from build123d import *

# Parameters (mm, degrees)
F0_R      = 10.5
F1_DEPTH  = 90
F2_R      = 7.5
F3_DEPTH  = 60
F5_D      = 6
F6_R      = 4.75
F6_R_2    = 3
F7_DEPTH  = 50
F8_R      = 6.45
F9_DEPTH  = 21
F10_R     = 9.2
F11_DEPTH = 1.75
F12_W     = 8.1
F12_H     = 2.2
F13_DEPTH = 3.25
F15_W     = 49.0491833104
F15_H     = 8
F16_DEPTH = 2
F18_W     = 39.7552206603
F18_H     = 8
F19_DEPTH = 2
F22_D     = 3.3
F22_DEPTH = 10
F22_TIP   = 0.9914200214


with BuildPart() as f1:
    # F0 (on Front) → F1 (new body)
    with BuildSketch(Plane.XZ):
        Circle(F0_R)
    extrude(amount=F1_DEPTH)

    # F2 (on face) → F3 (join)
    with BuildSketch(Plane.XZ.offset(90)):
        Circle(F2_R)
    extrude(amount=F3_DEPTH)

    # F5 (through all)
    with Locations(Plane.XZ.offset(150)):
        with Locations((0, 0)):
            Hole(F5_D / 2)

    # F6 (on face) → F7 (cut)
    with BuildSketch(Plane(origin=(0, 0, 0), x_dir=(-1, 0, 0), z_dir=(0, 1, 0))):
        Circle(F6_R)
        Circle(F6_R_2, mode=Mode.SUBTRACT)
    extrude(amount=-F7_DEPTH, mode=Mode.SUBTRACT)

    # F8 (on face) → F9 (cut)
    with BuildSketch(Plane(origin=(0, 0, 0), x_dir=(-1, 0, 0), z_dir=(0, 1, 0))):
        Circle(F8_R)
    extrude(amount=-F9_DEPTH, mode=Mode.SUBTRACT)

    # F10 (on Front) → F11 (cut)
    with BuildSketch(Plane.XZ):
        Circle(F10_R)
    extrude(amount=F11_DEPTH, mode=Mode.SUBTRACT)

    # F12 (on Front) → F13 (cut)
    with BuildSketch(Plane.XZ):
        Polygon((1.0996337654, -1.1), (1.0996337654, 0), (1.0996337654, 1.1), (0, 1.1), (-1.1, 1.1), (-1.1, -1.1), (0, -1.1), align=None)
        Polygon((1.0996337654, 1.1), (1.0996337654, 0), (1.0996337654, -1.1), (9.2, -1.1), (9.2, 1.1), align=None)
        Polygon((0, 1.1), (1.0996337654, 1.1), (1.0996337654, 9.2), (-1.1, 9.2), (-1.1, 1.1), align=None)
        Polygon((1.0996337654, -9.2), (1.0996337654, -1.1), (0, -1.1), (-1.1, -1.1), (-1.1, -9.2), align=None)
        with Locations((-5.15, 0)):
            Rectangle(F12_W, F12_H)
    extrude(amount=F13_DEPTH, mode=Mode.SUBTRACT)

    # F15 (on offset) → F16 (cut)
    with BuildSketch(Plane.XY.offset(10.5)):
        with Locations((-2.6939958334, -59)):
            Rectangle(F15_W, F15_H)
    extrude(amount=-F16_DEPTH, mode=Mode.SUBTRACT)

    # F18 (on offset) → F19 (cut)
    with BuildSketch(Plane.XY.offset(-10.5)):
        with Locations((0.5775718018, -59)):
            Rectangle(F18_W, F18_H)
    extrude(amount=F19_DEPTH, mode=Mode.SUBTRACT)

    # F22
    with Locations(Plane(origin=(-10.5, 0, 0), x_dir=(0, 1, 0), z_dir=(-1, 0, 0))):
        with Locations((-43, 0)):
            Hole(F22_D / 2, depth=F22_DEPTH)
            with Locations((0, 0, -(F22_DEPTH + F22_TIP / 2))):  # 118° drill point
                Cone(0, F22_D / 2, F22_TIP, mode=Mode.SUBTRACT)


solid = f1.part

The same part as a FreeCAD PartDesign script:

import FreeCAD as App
import Part
import Sketcher

V = App.Vector

doc = App.newDocument("Part")
body = doc.addObject("PartDesign::Body", "Body")

# Sketch on XZ plane
sketch1 = doc.addObject("Sketcher::SketchObject", "Sketch")
body.addObject(sketch1)
sketch1.AttachmentSupport = (doc.XZ_Plane, [""])
sketch1.MapMode = "FlatFace"
sketch1.addGeometry(Part.Circle(V(0, 0, 0), V(0, 0, 1), 10), False)
sketch1.addConstraint([
    Sketcher.Constraint("Coincident", 0, 3, -1, 1),
    Sketcher.Constraint("Diameter", 0, 21.0),
])
pad1 = doc.addObject("PartDesign::Pad", "Pad")
body.addObject(pad1)
pad1.Profile = sketch1
pad1.Length = 90

# Sketch on XZ plane
sketch2 = doc.addObject("Sketcher::SketchObject", "Sketch001")
body.addObject(sketch2)
sketch2.AttachmentSupport = (doc.XZ_Plane, [""])
sketch2.MapMode = "FlatFace"
sketch2.AttachmentOffset = App.Placement(V(0, 0, 90), App.Rotation())
sketch2.addGeometry(Part.Circle(V(0, 0, 0), V(0, 0, 1), 8), False)
sketch2.addConstraint([
    Sketcher.Constraint("Coincident", 0, 3, -1, 1),
    Sketcher.Constraint("Diameter", 0, 15.0),
])
pad2 = doc.addObject("PartDesign::Pad", "Pad001")
body.addObject(pad2)
pad2.Profile = sketch2
pad2.Length = 60

# Sketch on XZ plane
sketch3 = doc.addObject("Sketcher::SketchObject", "Sketch002")
body.addObject(sketch3)
sketch3.AttachmentSupport = (doc.XZ_Plane, [""])
sketch3.MapMode = "FlatFace"
sketch3.AttachmentOffset = App.Placement(V(0, 0, 150), App.Rotation())
sketch3.addGeometry(Part.Circle(V(0, 0, 0), V(0, 0, 1), 3), False)
sketch3.addConstraint([
    Sketcher.Constraint("Coincident", 0, 3, -1, 1),
    Sketcher.Constraint("Diameter", 0, 6.0),
])
doc.recompute()
hole = doc.addObject("PartDesign::Hole", "Hole")
body.addObject(hole)
hole.Profile = sketch3
hole.ThreadType = "None"
hole.Diameter = 6
hole.DepthType = "ThroughAll"

# Sketch on XZ plane
sketch4 = doc.addObject("Sketcher::SketchObject", "Sketch003")
body.addObject(sketch4)
sketch4.AttachmentSupport = (doc.XZ_Plane, [""])
sketch4.MapMode = "FlatFace"
sketch4.addGeometry([
    Part.Circle(V(0, 0, 0), V(0, 0, 1), 4.8),
    Part.Circle(V(0, 0, 0), V(0, 0, 1), 3),
], False)
sketch4.addConstraint([
    Sketcher.Constraint("Coincident", 0, 3, -1, 1),
    Sketcher.Constraint("Coincident", 1, 3, -1, 1),
    Sketcher.Constraint("Diameter", 1, 6.0),
    Sketcher.Constraint("Diameter", 0, 9.5),
])
pocket1 = doc.addObject("PartDesign::Pocket", "Pocket")
body.addObject(pocket1)
pocket1.Profile = sketch4
pocket1.Length = 50
pocket1.Reversed = True

# Sketch on XZ plane
sketch5 = doc.addObject("Sketcher::SketchObject", "Sketch004")
body.addObject(sketch5)
sketch5.AttachmentSupport = (doc.XZ_Plane, [""])
sketch5.MapMode = "FlatFace"
sketch5.addGeometry(Part.Circle(V(0, 0, 0), V(0, 0, 1), 6), False)
sketch5.addConstraint([
    Sketcher.Constraint("Coincident", 0, 3, -1, 1),
    Sketcher.Constraint("Diameter", 0, 12.9),
])
pocket2 = doc.addObject("PartDesign::Pocket", "Pocket001")
body.addObject(pocket2)
pocket2.Profile = sketch5
pocket2.Length = 21
pocket2.Reversed = True

# Sketch on XZ plane
sketch6 = doc.addObject("Sketcher::SketchObject", "Sketch005")
body.addObject(sketch6)
sketch6.AttachmentSupport = (doc.XZ_Plane, [""])
sketch6.MapMode = "FlatFace"
sketch6.addGeometry(Part.Circle(V(0, 0, 0), V(0, 0, 1), 9), False)
sketch6.addConstraint([
    Sketcher.Constraint("Coincident", 0, 3, -1, 1),
    Sketcher.Constraint("Diameter", 0, 18.4),
])
pocket3 = doc.addObject("PartDesign::Pocket", "Pocket002")
body.addObject(pocket3)
pocket3.Profile = sketch6
pocket3.Length = 1.75
pocket3.Reversed = True

# Sketch on XZ plane
sketch7 = doc.addObject("Sketcher::SketchObject", "Sketch006")
body.addObject(sketch7)
sketch7.AttachmentSupport = (doc.XZ_Plane, [""])
sketch7.MapMode = "FlatFace"
sketch7.addGeometry([
    Part.LineSegment(V(1.1, -1.1, 0), V(9.2, -1.1, 0)),  # 0
    Part.LineSegment(V(9.2, -1.1, 0), V(9.2, 1.1, 0)),  # 1
    Part.LineSegment(V(9.2, 1.1, 0), V(1.1, 1.1, 0)),  # 2
    Part.LineSegment(V(1.1, 1.1, 0), V(1.1, 9.2, 0)),  # 3
    Part.LineSegment(V(1.1, 9.2, 0), V(-1.1, 9.2, 0)),  # 4
    Part.LineSegment(V(-1.1, 9.2, 0), V(-1.1, 1.1, 0)),  # 5
    Part.LineSegment(V(-1.1, 1.1, 0), V(-9.2, 1.1, 0)),  # 6
    Part.LineSegment(V(-9.2, 1.1, 0), V(-9.2, -1.1, 0)),  # 7
    Part.LineSegment(V(-9.2, -1.1, 0), V(-1.1, -1.1, 0)),  # 8
    Part.LineSegment(V(-1.1, -1.1, 0), V(-1.1, -9.2, 0)),  # 9
    Part.LineSegment(V(-1.1, -9.2, 0), V(1.1, -9.2, 0)),  # 10
    Part.LineSegment(V(1.1, -9.2, 0), V(1.1, -1.1, 0)),  # 11
], False)
sketch7.addConstraint([
    Sketcher.Constraint("Coincident", 0, 2, 1, 1),
    Sketcher.Constraint("Coincident", 1, 2, 2, 1),
    Sketcher.Constraint("Coincident", 2, 2, 3, 1),
    Sketcher.Constraint("Coincident", 3, 2, 4, 1),
    Sketcher.Constraint("Coincident", 4, 2, 5, 1),
    Sketcher.Constraint("Coincident", 5, 2, 6, 1),
    Sketcher.Constraint("Coincident", 6, 2, 7, 1),
    Sketcher.Constraint("Coincident", 7, 2, 8, 1),
    Sketcher.Constraint("Coincident", 8, 2, 9, 1),
    Sketcher.Constraint("Coincident", 9, 2, 10, 1),
    Sketcher.Constraint("Coincident", 10, 2, 11, 1),
    Sketcher.Constraint("Coincident", 11, 2, 0, 1),
    Sketcher.Constraint("Horizontal", 0),
    Sketcher.Constraint("Vertical", 1),
    Sketcher.Constraint("Horizontal", 2),
    Sketcher.Constraint("Vertical", 3),
    Sketcher.Constraint("Horizontal", 4),
    Sketcher.Constraint("Vertical", 5),
    Sketcher.Constraint("Horizontal", 6),
    Sketcher.Constraint("Vertical", 7),
    Sketcher.Constraint("Horizontal", 8),
    Sketcher.Constraint("Vertical", 9),
    Sketcher.Constraint("Horizontal", 10),
    Sketcher.Constraint("Vertical", 11),
    Sketcher.Constraint("Symmetric", 0, 2, 6, 2, -1, 1),
    Sketcher.Constraint("Symmetric", 5, 2, 8, 2, -1),
    Sketcher.Constraint("Symmetric", 3, 2, 10, 2, -1),
    Sketcher.Constraint("Horizontal", 2, 2, 5, 2),
    Sketcher.Constraint("Equal", 8, 3),
    Sketcher.Constraint("DistanceX", 6, 2, 6, 1, 8.1),
    Sketcher.Constraint("DistanceY", 1, 1, 1, 2, 2.2),
    Sketcher.Constraint("DistanceX", -1, 1, 0, 2, 9.2),
    Sketcher.Constraint("DistanceX", 0, 1, 0, 2, 8.100366),
])
pocket4 = doc.addObject("PartDesign::Pocket", "Pocket003")
body.addObject(pocket4)
pocket4.Profile = sketch7
pocket4.Length = 3.25
pocket4.Reversed = True

# Sketch on XY plane
sketch8 = doc.addObject("Sketcher::SketchObject", "Sketch007")
body.addObject(sketch8)
sketch8.AttachmentSupport = (doc.XY_Plane, [""])
sketch8.MapMode = "FlatFace"
sketch8.AttachmentOffset = App.Placement(V(0, 0, 10.5), App.Rotation())
sketch8.addGeometry([
    Part.LineSegment(V(-27, -55, 0), V(-27, -63, 0)),
    Part.LineSegment(V(-27, -63, 0), V(22, -63, 0)),
    Part.LineSegment(V(22, -63, 0), V(22, -55, 0)),
    Part.LineSegment(V(22, -55, 0), V(-27, -55, 0)),
], False)
sketch8.addConstraint([
    Sketcher.Constraint("Coincident", 0, 2, 1, 1),
    Sketcher.Constraint("Coincident", 1, 2, 2, 1),
    Sketcher.Constraint("Coincident", 2, 2, 3, 1),
    Sketcher.Constraint("Coincident", 3, 2, 0, 1),
    Sketcher.Constraint("Vertical", 0),
    Sketcher.Constraint("Horizontal", 1),
    Sketcher.Constraint("Vertical", 2),
    Sketcher.Constraint("Horizontal", 3),
    Sketcher.Constraint("DistanceY", 0, 2, 0, 1, 8.0),
    Sketcher.Constraint("DistanceY", 0, 2, -1, 1, 63.0),
    Sketcher.Constraint("DistanceX", 1, 1, 1, 2, 49.049183),
    Sketcher.Constraint("DistanceX", 0, 2, -1, 1, 27.218587),
])
pocket5 = doc.addObject("PartDesign::Pocket", "Pocket004")
body.addObject(pocket5)
pocket5.Profile = sketch8
pocket5.Length = 2

# Sketch on XY plane
sketch9 = doc.addObject("Sketcher::SketchObject", "Sketch008")
body.addObject(sketch9)
sketch9.AttachmentSupport = (doc.XY_Plane, [""])
sketch9.MapMode = "FlatFace"
sketch9.AttachmentOffset = App.Placement(V(0, 0, -10.5), App.Rotation())
sketch9.addGeometry([
    Part.LineSegment(V(-19, -55, 0), V(-19, -63, 0)),
    Part.LineSegment(V(-19, -63, 0), V(20, -63, 0)),
    Part.LineSegment(V(20, -63, 0), V(20, -55, 0)),
    Part.LineSegment(V(20, -55, 0), V(-19, -55, 0)),
], False)
sketch9.addConstraint([
    Sketcher.Constraint("Coincident", 0, 2, 1, 1),
    Sketcher.Constraint("Coincident", 1, 2, 2, 1),
    Sketcher.Constraint("Coincident", 2, 2, 3, 1),
    Sketcher.Constraint("Coincident", 3, 2, 0, 1),
    Sketcher.Constraint("Vertical", 0),
    Sketcher.Constraint("Horizontal", 1),
    Sketcher.Constraint("Vertical", 2),
    Sketcher.Constraint("Horizontal", 3),
    Sketcher.Constraint("DistanceY", 0, 2, 0, 1, 8.0),
    Sketcher.Constraint("DistanceY", 0, 2, -1, 1, 63.0),
    Sketcher.Constraint("DistanceX", 1, 1, 1, 2, 39.755221),
    Sketcher.Constraint("DistanceX", 0, 2, -1, 1, 19.300039),
])
pocket6 = doc.addObject("PartDesign::Pocket", "Pocket005")
body.addObject(pocket6)
pocket6.Profile = sketch9
pocket6.Length = 2
pocket6.Reversed = True

# Sketch on YZ plane
sketch10 = doc.addObject("Sketcher::SketchObject", "Sketch009")
body.addObject(sketch10)
sketch10.AttachmentSupport = (doc.YZ_Plane, [""])
sketch10.MapMode = "FlatFace"
sketch10.AttachmentOffset = App.Placement(V(0, 0, -10.5), App.Rotation())
sketch10.addGeometry(Part.Circle(V(-43, 0, 0), V(0, 0, 1), 1.6), False)
sketch10.addConstraint([
    Sketcher.Constraint("PointOnObject", 0, 3, -1),
    Sketcher.Constraint("Diameter", 0, 3.3),
    Sketcher.Constraint("DistanceX", 0, 3, -1, 1, 43.0),
])
doc.recompute()
hole2 = doc.addObject("PartDesign::Hole", "Hole001")
body.addObject(hole2)
hole2.Profile = sketch10
hole2.ThreadType = "None"
hole2.Diameter = 3.3
hole2.DepthType = "Dimension"
hole2.Depth = 10
hole2.DrillPoint = "Angled"
hole2.DrillPointAngle = 118
hole2.Reversed = True

doc.recompute()
